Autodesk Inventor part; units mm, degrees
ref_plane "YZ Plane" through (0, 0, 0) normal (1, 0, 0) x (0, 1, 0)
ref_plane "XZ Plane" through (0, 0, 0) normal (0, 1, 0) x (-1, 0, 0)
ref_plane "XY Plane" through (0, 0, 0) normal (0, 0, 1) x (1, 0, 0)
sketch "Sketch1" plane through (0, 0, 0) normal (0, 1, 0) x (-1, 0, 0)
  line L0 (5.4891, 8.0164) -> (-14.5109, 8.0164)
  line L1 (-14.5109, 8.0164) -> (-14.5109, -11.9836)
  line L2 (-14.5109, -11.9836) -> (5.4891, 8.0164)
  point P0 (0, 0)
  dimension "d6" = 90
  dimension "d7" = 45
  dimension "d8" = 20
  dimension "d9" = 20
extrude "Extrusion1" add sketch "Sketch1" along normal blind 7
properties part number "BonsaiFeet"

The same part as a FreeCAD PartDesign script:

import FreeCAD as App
import Part
import Sketcher

V = App.Vector

doc = App.newDocument("Part")
body = doc.addObject("PartDesign::Body", "Body")

sketch1 = body.newObject("Sketcher::SketchObject", "Sketch")
sketch1.AttachmentSupport = (doc.getObject("XZ_Plane"), [""])
sketch1.MapMode = "FlatFace"
sketch1.addGeometry(Part.LineSegment(V(14.5109, -11.9836, 0), V(-5.4891, 8.0164, 0)), False)
sketch1.addGeometry(Part.LineSegment(V(-5.4891, 8.0164, 0), V(14.5109, 8.0164, 0)), False)
sketch1.addGeometry(Part.LineSegment(V(14.5109, 8.0164, 0), V(14.5109, -11.9836, 0)), False)
sketch1.addConstraint(Sketcher.Constraint("Coincident", 0, 2, 1, 1))
sketch1.addConstraint(Sketcher.Constraint("Coincident", 1, 2, 2, 1))
sketch1.addConstraint(Sketcher.Constraint("Coincident", 2, 2, 0, 1))
sketch1.addConstraint(Sketcher.Constraint("Horizontal", 1))
sketch1.addConstraint(Sketcher.Constraint("Vertical", 2))
sketch1.addConstraint(Sketcher.Constraint("Equal", 1, 2))
sketch1.addConstraint(Sketcher.Constraint("DistanceX", 1, 1, 1, 2, 20.0))
sketch1.addConstraint(Sketcher.Constraint("DistanceX", 0, 2, -1, 1, 5.489))
sketch1.addConstraint(Sketcher.Constraint("DistanceY", -1, 1, 0, 2, 8.0164))
pad1 = body.newObject("PartDesign::Pad", "Pad")
pad1.Profile = sketch1
pad1.Length = 7
pad1.Reversed = True

doc.recompute()
